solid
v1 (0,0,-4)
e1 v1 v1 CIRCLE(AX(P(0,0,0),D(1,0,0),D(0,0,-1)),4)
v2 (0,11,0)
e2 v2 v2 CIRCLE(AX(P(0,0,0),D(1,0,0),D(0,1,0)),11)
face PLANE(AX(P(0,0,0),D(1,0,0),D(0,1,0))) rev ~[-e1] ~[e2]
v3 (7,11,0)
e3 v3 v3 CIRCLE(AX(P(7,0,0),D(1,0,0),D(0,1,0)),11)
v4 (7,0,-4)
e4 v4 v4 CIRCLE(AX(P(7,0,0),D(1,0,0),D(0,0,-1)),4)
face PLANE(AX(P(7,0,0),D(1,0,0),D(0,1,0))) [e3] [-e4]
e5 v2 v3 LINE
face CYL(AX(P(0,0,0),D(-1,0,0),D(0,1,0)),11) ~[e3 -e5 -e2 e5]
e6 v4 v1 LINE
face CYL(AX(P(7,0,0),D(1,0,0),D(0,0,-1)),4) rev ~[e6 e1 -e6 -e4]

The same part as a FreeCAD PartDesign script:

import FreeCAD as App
import Part
import Sketcher
from FreeCAD import Vector
Q = App.Units.Quantity

doc = App.newDocument("Part")
body = doc.addObject("PartDesign::Body", "Body")

# Sketch on YZ plane
sketch1 = body.newObject("Sketcher::SketchObject", "Sketch")
sketch1.AttachmentSupport = (doc.getObject("YZ_Plane"), [""])
sketch1.MapMode = "FlatFace"
sketch1.addGeometry(Part.Circle(Vector(0, 0, 0), Vector(0, 0, 1), 11), False)
sketch1.addConstraint([
    Sketcher.Constraint("Coincident", 0, 3, -1, 1),
    Sketcher.Constraint("Diameter", 0, Q("22 mm")),
])
pad1 = body.newObject("PartDesign::Pad", "Pad")
pad1.Profile = sketch1
pad1.Length = 7

# Sketch on YZ plane
sketch2 = body.newObject("Sketcher::SketchObject", "Sketch001")
sketch2.AttachmentSupport = (doc.getObject("YZ_Plane"), [""])
sketch2.MapMode = "FlatFace"
sketch2.AttachmentOffset = App.Placement(Vector(0, 0, 7), App.Rotation())
sketch2.addGeometry(Part.Circle(Vector(0, 0, 0), Vector(0, 0, 1), 4), False)
sketch2.addConstraint([
    Sketcher.Constraint("Coincident", 0, 3, -1, 1),
    Sketcher.Constraint("Diameter", 0, Q("8 mm")),
])
pocket1 = body.newObject("PartDesign::Pocket", "Pocket")
pocket1.Profile = sketch2
pocket1.Type = "ThroughAll"

doc.recompute()
